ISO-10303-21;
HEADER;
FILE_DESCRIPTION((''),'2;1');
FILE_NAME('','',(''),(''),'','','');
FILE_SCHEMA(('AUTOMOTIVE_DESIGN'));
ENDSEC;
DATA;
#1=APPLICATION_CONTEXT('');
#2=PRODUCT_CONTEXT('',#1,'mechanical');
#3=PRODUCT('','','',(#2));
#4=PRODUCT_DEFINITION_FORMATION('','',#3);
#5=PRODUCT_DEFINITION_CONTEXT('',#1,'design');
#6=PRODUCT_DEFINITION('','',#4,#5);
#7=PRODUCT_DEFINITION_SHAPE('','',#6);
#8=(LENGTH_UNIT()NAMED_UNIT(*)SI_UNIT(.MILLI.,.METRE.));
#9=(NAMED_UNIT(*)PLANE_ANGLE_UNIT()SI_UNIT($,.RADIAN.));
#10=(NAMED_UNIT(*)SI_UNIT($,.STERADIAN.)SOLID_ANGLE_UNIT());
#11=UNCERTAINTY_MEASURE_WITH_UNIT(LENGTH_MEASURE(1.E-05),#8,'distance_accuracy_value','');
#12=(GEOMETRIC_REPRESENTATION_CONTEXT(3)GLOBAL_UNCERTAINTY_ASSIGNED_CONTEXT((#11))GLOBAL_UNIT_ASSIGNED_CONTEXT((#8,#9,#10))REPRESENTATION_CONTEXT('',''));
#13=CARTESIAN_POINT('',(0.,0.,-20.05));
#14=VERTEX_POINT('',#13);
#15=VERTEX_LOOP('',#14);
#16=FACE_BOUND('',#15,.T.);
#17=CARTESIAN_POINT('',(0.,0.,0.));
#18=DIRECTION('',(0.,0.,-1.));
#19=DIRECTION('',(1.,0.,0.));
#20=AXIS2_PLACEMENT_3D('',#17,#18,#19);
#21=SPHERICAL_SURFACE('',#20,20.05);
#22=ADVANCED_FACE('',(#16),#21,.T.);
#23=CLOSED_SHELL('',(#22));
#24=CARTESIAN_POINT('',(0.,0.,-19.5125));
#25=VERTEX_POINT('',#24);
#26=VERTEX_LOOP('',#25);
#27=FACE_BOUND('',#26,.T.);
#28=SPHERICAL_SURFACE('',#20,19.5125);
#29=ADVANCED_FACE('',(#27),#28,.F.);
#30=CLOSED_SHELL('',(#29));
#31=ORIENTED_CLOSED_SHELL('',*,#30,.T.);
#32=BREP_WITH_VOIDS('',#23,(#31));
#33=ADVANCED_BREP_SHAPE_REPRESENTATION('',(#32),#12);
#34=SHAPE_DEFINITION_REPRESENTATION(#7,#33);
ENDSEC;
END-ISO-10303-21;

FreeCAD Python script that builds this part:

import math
import FreeCAD as App
import Part
import Sketcher
from FreeCAD import Vector
Q = App.Units.Quantity

doc = App.newDocument("Part")
params = doc.addObject("Spreadsheet::Sheet", "Params")
for row, (alias, value) in enumerate([
    ("sketch1_radius", "20.05 mm"),
    ("revolution_angle", "360 deg"),
], start=1):
    params.set(f"A{row}", alias)
    params.set(f"B{row}", "=" + value)
    params.setAlias(f"B{row}", alias)

body = doc.addObject("PartDesign::Body", "Body")

# Sketch on XZ plane
sketch1 = doc.addObject("Sketcher::SketchObject", "Sketch")
body.addObject(sketch1)
sketch1.AttachmentSupport = (doc.XZ_Plane, [""])
sketch1.MapMode = "FlatFace"
sketch1.addGeometry([
    Part.LineSegment(Vector(0, -20.1, 0), Vector(0, -19.5, 0)),
    Part.ArcOfCircle(Part.Circle(Vector(0, 0, 0), Vector(0, 0, 1), 19.5), math.radians(-90), math.radians(90)),
    Part.LineSegment(Vector(0, 19.5, 0), Vector(0, 20.1, 0)),
    Part.ArcOfCircle(Part.Circle(Vector(0, 0, 0), Vector(0, 0, 1), 20.1), math.radians(-90), math.radians(90)),
], False)
sketch1.addConstraint([
    Sketcher.Constraint("Coincident", 0, 2, 1, 1),
    Sketcher.Constraint("Coincident", 1, 2, 2, 1),
    Sketcher.Constraint("Coincident", 2, 2, 3, 2),
    Sketcher.Constraint("Coincident", 3, 1, 0, 1),
    Sketcher.Constraint("Vertical", 0),
    Sketcher.Constraint("Vertical", 2),
    Sketcher.Constraint("Coincident", 1, 3, -1, 1),
    Sketcher.Constraint("Coincident", 3, 3, -1, 1),
    Sketcher.Constraint("PointOnObject", 0, 2, -2),
    Sketcher.Constraint("PointOnObject", 1, 2, -2),
    Sketcher.Constraint("Radius", 3, Q("20.05 mm")),
    Sketcher.Constraint("Radius", 1, Q("19.5125 mm")),
])
sketch1.setExpression("Constraints[10]", "Params.sketch1_radius")
revolution = doc.addObject("PartDesign::Revolution", "Revolution")
body.addObject(revolution)
revolution.Profile = sketch1
revolution.ReferenceAxis = (sketch1, ["V_Axis"])
revolution.setExpression("Angle", "Params.revolution_angle")

doc.recompute()
